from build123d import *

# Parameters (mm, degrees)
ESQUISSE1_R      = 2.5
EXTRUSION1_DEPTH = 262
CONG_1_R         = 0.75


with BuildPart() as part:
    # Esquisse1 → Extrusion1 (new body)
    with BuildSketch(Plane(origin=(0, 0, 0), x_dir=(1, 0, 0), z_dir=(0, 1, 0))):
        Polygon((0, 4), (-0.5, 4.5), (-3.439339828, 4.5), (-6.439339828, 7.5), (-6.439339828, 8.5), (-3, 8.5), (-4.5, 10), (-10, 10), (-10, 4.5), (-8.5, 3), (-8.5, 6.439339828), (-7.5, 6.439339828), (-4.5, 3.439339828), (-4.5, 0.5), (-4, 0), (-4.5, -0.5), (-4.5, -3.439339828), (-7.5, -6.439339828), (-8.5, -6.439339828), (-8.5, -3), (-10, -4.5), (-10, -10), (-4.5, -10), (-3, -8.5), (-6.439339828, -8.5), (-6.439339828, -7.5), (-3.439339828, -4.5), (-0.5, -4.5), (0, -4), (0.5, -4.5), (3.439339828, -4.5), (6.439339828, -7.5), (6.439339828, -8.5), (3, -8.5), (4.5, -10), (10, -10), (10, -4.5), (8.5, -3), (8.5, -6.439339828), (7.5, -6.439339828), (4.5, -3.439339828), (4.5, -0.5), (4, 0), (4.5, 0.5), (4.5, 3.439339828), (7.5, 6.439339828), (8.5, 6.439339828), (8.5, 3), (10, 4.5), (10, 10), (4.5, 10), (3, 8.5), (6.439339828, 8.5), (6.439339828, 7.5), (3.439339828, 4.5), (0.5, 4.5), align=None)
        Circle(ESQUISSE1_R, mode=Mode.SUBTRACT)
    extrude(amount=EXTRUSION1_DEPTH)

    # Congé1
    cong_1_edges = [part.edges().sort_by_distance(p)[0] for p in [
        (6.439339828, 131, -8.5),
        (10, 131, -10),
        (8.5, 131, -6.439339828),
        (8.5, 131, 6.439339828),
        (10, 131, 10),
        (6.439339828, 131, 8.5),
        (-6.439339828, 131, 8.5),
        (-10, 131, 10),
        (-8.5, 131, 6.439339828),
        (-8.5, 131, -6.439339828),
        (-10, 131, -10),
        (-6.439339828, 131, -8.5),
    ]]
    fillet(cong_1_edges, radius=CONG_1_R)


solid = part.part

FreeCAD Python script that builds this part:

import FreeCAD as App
import Part
import Sketcher

V = App.Vector


def edges_at(feature, points):
    """Names of the edges that pass closest to the given points."""
    edges = feature.Shape.Edges
    near = lambda p: min(range(len(edges)), key=lambda i: edges[i].distToShape(Part.Vertex(*p))[0])
    return sorted({f"Edge{near(p) + 1}" for p in points})


def add_polygon(sketch, points):
    """Adds a closed chain of lines whose ends are joined by coincident constraints."""
    first, n = sketch.GeometryCount, len(points)
    for a, b in zip(points, points[1:] + points[:1]):
        sketch.addGeometry(Part.LineSegment(App.Vector(*a, 0), App.Vector(*b, 0)), False)
    for i in range(n):
        sketch.addConstraint(Sketcher.Constraint("Coincident", first + i, 2, first + (i + 1) % n, 1))

doc = App.newDocument("Part")
params = doc.addObject("Spreadsheet::Sheet", "Params")
for row, (alias, value) in enumerate([
    ("sketch1_diameter", "5 mm"),
    ("sketch1_width", "1 mm"),
    ("sketch1_width2", "5.5 mm"),
    ("pad1_length", "262 mm"),
    ("fillet_radius", "0.75 mm"),
], start=1):
    params.set(f"A{row}", alias)
    params.set(f"B{row}", "=" + value)
    params.setAlias(f"B{row}", alias)

body = doc.addObject("PartDesign::Body", "Body")

# Sketch on XZ plane
sketch1 = body.newObject("Sketcher::SketchObject", "Sketch")
sketch1.AttachmentSupport = (doc.getObject("XZ_Plane"), [""])
sketch1.MapMode = "FlatFace"
add_polygon(sketch1, [(0, -4), (-0.5, -4.5), (-3.43934, -4.5), (-6.43934, -7.5), (-6.43934, -8.5), (-3, -8.5), (-4.5, -10), (-10, -10), (-10, -4.5), (-8.5, -3), (-8.5, -6.43934), (-7.5, -6.43934), (-4.5, -3.43934), (-4.5, -0.5), (-4, 0), (-4.5, 0.5), (-4.5, 3.43934), (-7.5, 6.43934), (-8.5, 6.43934), (-8.5, 3), (-10, 4.5), (-10, 10), (-4.5, 10), (-3, 8.5), (-6.43934, 8.5), (-6.43934, 7.5), (-3.43934, 4.5), (-0.5, 4.5), (0, 4), (0.5, 4.5), (3.43934, 4.5), (6.43934, 7.5), (6.43934, 8.5), (3, 8.5), (4.5, 10), (10, 10), (10, 4.5), (8.5, 3), (8.5, 6.43934), (7.5, 6.43934), (4.5, 3.43934), (4.5, 0.5), (4, 0), (4.5, -0.5), (4.5, -3.43934), (7.5, -6.43934), (8.5, -6.43934), (8.5, -3), (10, -4.5), (10, -10), (4.5, -10), (3, -8.5), (6.43934, -8.5), (6.43934, -7.5), (3.43934, -4.5), (0.5, -4.5)])  # lines 0-55
sketch1.addGeometry(Part.Circle(V(0, 0, 0), V(0, 0, 1), 2.5), False)  # 56
sketch1.addConstraint([
    Sketcher.Constraint("Horizontal", 1),
    Sketcher.Constraint("Vertical", 3),
    Sketcher.Constraint("Horizontal", 4),
    Sketcher.Constraint("Horizontal", 6),
    Sketcher.Constraint("Vertical", 7),
    Sketcher.Constraint("Vertical", 9),
    Sketcher.Constraint("Horizontal", 10),
    Sketcher.Constraint("Vertical", 12),
    Sketcher.Constraint("Vertical", 15),
    Sketcher.Constraint("Horizontal", 17),
    Sketcher.Constraint("Vertical", 18),
    Sketcher.Constraint("Vertical", 20),
    Sketcher.Constraint("Horizontal", 21),
    Sketcher.Constraint("Horizontal", 23),
    Sketcher.Constraint("Vertical", 24),
    Sketcher.Constraint("Horizontal", 26),
    Sketcher.Constraint("Horizontal", 29),
    Sketcher.Constraint("Vertical", 31),
    Sketcher.Constraint("Horizontal", 32),
    Sketcher.Constraint("Horizontal", 34),
    Sketcher.Constraint("Vertical", 35),
    Sketcher.Constraint("Vertical", 37),
    Sketcher.Constraint("Horizontal", 38),
    Sketcher.Constraint("Vertical", 40),
    Sketcher.Constraint("Vertical", 43),
    Sketcher.Constraint("Horizontal", 45),
    Sketcher.Constraint("Vertical", 46),
    Sketcher.Constraint("Vertical", 48),
    Sketcher.Constraint("Horizontal", 49),
    Sketcher.Constraint("Horizontal", 51),
    Sketcher.Constraint("Vertical", 52),
    Sketcher.Constraint("Horizontal", 54),
    Sketcher.Constraint("Coincident", 56, 3, -1, 1),
    Sketcher.Constraint("Symmetric", 0, 2, 28, 2, -1, 1),
    Sketcher.Constraint("Symmetric", 2, 2, 30, 2, -1, 1),
    Sketcher.Constraint("Symmetric", 4, 2, 32, 2, -1, 1),
    Sketcher.Constraint("Symmetric", 5, 2, 33, 2, -1, 1),
    Sketcher.Constraint("Symmetric", 7, 2, 35, 2, -1, 1),
    Sketcher.Constraint("Symmetric", 8, 2, 36, 2, -1, 1),
    Sketcher.Constraint("Symmetric", 10, 2, 38, 2, -1, 1),
    Sketcher.Constraint("Symmetric", 11, 2, 39, 2, -1, 1),
    Sketcher.Constraint("Symmetric", 13, 2, 41, 2, -1, 1),
    Sketcher.Constraint("Symmetric", 14, 2, 42, 2, -1, 1),
    Sketcher.Constraint("Symmetric", 16, 2, 44, 2, -1, 1),
    Sketcher.Constraint("Symmetric", 18, 2, 46, 2, -1, 1),
    Sketcher.Constraint("Symmetric", 19, 2, 47, 2, -1, 1),
    Sketcher.Constraint("Symmetric", 21, 2, 49, 2, -1, 1),
    Sketcher.Constraint("Symmetric", 22, 2, 50, 2, -1, 1),
    Sketcher.Constraint("Symmetric", 24, 2, 52, 2, -1, 1),
    Sketcher.Constraint("Symmetric", 25, 2, 53, 2, -1, 1),
    Sketcher.Constraint("Symmetric", 27, 2, 55, 2, -1, 1),
    Sketcher.Constraint("Symmetric", 26, 2, 28, 2, -2),
    Sketcher.Constraint("Symmetric", 24, 2, 30, 2, -2),
    Sketcher.Constraint("Symmetric", 22, 2, 32, 2, -2),
    Sketcher.Constraint("Symmetric", 21, 2, 33, 2, -2),
    Sketcher.Constraint("Symmetric", 19, 2, 35, 2, -2),
    Sketcher.Constraint("Symmetric", 18, 2, 36, 2, -2),
    Sketcher.Constraint("Symmetric", 16, 2, 38, 2, -2),
    Sketcher.Constraint("Symmetric", 15, 2, 39, 2, -2),
    Sketcher.Constraint("PointOnObject", 13, 2, -1),
    Sketcher.Constraint("PointOnObject", 27, 2, -2),
    Sketcher.Constraint("Parallel", 0, 2),
    Sketcher.Constraint("Parallel", 2, 5),
    Sketcher.Constraint("Parallel", 5, 8),
    Sketcher.Constraint("Parallel", 8, 11),
    Sketcher.Constraint("Parallel", 11, 13),
    Sketcher.Constraint("Perpendicular", 13, 14),
    Sketcher.Constraint("Parallel", 14, 16),
    Sketcher.Constraint("Parallel", 22, 25),
    Sketcher.Constraint("Parallel", 28, 30),
    Sketcher.Constraint("Parallel", 39, 41),
    Sketcher.Constraint("Parallel", 42, 44),
    Sketcher.Constraint("Parallel", 53, 55),
    Sketcher.Constraint("Horizontal", 1, 2, 7, 2),
    Sketcher.Constraint("Vertical", 5, 2, 11, 2),
    Sketcher.Constraint("Equal", 45, 3),
    Sketcher.Constraint("Equal", 49, 7),
    Sketcher.Constraint("Equal", 51, 9),
    Sketcher.Constraint("Equal", 54, 12),
    Sketcher.Constraint("Equal", 5, 8),
    Sketcher.Constraint("Equal", 0, 13),
    Sketcher.Constraint("Diameter", 56, 5.0),
    Sketcher.Constraint("DistanceX", 10, 1, 10, 2, 1.0),
    Sketcher.Constraint("DistanceX", 6, 2, 6, 1, 5.5),
    Sketcher.Constraint("DistanceX", 4, 2, -1, 1, 3.0),
    Sketcher.Constraint("DistanceY", 5, 2, -1, 1, 10.0),
    Sketcher.Constraint("DistanceX", 13, 2, -1, 1, 4.0),
    Sketcher.Constraint("DistanceX", 1, 2, 1, 1, 2.93934),
])
sketch1.setExpression("Constraints[137]", "Params.sketch1_diameter")
sketch1.setExpression("Constraints[138]", "Params.sketch1_width")
sketch1.setExpression("Constraints[139]", "Params.sketch1_width2")
pad1 = body.newObject("PartDesign::Pad", "Pad")
pad1.Profile = sketch1
pad1.setExpression("Length", "Params.pad1_length")
pad1.Reversed = True
doc.recompute()

fillet = body.newObject("PartDesign::Fillet", "Fillet")
fillet.Base = (pad1, edges_at(pad1, [
    (6.439, 131, -8.5),
    (10, 131, -10),
    (8.5, 131, -6.439),
    (8.5, 131, 6.439),
    (10, 131, 10),
    (6.439, 131, 8.5),
    (-6.439, 131, 8.5),
    (-10, 131, 10),
    (-8.5, 131, 6.439),
    (-8.5, 131, -6.439),
    (-10, 131, -10),
    (-6.439, 131, -8.5),
]))
fillet.setExpression("Radius", "Params.fillet_radius")

doc.recompute()
